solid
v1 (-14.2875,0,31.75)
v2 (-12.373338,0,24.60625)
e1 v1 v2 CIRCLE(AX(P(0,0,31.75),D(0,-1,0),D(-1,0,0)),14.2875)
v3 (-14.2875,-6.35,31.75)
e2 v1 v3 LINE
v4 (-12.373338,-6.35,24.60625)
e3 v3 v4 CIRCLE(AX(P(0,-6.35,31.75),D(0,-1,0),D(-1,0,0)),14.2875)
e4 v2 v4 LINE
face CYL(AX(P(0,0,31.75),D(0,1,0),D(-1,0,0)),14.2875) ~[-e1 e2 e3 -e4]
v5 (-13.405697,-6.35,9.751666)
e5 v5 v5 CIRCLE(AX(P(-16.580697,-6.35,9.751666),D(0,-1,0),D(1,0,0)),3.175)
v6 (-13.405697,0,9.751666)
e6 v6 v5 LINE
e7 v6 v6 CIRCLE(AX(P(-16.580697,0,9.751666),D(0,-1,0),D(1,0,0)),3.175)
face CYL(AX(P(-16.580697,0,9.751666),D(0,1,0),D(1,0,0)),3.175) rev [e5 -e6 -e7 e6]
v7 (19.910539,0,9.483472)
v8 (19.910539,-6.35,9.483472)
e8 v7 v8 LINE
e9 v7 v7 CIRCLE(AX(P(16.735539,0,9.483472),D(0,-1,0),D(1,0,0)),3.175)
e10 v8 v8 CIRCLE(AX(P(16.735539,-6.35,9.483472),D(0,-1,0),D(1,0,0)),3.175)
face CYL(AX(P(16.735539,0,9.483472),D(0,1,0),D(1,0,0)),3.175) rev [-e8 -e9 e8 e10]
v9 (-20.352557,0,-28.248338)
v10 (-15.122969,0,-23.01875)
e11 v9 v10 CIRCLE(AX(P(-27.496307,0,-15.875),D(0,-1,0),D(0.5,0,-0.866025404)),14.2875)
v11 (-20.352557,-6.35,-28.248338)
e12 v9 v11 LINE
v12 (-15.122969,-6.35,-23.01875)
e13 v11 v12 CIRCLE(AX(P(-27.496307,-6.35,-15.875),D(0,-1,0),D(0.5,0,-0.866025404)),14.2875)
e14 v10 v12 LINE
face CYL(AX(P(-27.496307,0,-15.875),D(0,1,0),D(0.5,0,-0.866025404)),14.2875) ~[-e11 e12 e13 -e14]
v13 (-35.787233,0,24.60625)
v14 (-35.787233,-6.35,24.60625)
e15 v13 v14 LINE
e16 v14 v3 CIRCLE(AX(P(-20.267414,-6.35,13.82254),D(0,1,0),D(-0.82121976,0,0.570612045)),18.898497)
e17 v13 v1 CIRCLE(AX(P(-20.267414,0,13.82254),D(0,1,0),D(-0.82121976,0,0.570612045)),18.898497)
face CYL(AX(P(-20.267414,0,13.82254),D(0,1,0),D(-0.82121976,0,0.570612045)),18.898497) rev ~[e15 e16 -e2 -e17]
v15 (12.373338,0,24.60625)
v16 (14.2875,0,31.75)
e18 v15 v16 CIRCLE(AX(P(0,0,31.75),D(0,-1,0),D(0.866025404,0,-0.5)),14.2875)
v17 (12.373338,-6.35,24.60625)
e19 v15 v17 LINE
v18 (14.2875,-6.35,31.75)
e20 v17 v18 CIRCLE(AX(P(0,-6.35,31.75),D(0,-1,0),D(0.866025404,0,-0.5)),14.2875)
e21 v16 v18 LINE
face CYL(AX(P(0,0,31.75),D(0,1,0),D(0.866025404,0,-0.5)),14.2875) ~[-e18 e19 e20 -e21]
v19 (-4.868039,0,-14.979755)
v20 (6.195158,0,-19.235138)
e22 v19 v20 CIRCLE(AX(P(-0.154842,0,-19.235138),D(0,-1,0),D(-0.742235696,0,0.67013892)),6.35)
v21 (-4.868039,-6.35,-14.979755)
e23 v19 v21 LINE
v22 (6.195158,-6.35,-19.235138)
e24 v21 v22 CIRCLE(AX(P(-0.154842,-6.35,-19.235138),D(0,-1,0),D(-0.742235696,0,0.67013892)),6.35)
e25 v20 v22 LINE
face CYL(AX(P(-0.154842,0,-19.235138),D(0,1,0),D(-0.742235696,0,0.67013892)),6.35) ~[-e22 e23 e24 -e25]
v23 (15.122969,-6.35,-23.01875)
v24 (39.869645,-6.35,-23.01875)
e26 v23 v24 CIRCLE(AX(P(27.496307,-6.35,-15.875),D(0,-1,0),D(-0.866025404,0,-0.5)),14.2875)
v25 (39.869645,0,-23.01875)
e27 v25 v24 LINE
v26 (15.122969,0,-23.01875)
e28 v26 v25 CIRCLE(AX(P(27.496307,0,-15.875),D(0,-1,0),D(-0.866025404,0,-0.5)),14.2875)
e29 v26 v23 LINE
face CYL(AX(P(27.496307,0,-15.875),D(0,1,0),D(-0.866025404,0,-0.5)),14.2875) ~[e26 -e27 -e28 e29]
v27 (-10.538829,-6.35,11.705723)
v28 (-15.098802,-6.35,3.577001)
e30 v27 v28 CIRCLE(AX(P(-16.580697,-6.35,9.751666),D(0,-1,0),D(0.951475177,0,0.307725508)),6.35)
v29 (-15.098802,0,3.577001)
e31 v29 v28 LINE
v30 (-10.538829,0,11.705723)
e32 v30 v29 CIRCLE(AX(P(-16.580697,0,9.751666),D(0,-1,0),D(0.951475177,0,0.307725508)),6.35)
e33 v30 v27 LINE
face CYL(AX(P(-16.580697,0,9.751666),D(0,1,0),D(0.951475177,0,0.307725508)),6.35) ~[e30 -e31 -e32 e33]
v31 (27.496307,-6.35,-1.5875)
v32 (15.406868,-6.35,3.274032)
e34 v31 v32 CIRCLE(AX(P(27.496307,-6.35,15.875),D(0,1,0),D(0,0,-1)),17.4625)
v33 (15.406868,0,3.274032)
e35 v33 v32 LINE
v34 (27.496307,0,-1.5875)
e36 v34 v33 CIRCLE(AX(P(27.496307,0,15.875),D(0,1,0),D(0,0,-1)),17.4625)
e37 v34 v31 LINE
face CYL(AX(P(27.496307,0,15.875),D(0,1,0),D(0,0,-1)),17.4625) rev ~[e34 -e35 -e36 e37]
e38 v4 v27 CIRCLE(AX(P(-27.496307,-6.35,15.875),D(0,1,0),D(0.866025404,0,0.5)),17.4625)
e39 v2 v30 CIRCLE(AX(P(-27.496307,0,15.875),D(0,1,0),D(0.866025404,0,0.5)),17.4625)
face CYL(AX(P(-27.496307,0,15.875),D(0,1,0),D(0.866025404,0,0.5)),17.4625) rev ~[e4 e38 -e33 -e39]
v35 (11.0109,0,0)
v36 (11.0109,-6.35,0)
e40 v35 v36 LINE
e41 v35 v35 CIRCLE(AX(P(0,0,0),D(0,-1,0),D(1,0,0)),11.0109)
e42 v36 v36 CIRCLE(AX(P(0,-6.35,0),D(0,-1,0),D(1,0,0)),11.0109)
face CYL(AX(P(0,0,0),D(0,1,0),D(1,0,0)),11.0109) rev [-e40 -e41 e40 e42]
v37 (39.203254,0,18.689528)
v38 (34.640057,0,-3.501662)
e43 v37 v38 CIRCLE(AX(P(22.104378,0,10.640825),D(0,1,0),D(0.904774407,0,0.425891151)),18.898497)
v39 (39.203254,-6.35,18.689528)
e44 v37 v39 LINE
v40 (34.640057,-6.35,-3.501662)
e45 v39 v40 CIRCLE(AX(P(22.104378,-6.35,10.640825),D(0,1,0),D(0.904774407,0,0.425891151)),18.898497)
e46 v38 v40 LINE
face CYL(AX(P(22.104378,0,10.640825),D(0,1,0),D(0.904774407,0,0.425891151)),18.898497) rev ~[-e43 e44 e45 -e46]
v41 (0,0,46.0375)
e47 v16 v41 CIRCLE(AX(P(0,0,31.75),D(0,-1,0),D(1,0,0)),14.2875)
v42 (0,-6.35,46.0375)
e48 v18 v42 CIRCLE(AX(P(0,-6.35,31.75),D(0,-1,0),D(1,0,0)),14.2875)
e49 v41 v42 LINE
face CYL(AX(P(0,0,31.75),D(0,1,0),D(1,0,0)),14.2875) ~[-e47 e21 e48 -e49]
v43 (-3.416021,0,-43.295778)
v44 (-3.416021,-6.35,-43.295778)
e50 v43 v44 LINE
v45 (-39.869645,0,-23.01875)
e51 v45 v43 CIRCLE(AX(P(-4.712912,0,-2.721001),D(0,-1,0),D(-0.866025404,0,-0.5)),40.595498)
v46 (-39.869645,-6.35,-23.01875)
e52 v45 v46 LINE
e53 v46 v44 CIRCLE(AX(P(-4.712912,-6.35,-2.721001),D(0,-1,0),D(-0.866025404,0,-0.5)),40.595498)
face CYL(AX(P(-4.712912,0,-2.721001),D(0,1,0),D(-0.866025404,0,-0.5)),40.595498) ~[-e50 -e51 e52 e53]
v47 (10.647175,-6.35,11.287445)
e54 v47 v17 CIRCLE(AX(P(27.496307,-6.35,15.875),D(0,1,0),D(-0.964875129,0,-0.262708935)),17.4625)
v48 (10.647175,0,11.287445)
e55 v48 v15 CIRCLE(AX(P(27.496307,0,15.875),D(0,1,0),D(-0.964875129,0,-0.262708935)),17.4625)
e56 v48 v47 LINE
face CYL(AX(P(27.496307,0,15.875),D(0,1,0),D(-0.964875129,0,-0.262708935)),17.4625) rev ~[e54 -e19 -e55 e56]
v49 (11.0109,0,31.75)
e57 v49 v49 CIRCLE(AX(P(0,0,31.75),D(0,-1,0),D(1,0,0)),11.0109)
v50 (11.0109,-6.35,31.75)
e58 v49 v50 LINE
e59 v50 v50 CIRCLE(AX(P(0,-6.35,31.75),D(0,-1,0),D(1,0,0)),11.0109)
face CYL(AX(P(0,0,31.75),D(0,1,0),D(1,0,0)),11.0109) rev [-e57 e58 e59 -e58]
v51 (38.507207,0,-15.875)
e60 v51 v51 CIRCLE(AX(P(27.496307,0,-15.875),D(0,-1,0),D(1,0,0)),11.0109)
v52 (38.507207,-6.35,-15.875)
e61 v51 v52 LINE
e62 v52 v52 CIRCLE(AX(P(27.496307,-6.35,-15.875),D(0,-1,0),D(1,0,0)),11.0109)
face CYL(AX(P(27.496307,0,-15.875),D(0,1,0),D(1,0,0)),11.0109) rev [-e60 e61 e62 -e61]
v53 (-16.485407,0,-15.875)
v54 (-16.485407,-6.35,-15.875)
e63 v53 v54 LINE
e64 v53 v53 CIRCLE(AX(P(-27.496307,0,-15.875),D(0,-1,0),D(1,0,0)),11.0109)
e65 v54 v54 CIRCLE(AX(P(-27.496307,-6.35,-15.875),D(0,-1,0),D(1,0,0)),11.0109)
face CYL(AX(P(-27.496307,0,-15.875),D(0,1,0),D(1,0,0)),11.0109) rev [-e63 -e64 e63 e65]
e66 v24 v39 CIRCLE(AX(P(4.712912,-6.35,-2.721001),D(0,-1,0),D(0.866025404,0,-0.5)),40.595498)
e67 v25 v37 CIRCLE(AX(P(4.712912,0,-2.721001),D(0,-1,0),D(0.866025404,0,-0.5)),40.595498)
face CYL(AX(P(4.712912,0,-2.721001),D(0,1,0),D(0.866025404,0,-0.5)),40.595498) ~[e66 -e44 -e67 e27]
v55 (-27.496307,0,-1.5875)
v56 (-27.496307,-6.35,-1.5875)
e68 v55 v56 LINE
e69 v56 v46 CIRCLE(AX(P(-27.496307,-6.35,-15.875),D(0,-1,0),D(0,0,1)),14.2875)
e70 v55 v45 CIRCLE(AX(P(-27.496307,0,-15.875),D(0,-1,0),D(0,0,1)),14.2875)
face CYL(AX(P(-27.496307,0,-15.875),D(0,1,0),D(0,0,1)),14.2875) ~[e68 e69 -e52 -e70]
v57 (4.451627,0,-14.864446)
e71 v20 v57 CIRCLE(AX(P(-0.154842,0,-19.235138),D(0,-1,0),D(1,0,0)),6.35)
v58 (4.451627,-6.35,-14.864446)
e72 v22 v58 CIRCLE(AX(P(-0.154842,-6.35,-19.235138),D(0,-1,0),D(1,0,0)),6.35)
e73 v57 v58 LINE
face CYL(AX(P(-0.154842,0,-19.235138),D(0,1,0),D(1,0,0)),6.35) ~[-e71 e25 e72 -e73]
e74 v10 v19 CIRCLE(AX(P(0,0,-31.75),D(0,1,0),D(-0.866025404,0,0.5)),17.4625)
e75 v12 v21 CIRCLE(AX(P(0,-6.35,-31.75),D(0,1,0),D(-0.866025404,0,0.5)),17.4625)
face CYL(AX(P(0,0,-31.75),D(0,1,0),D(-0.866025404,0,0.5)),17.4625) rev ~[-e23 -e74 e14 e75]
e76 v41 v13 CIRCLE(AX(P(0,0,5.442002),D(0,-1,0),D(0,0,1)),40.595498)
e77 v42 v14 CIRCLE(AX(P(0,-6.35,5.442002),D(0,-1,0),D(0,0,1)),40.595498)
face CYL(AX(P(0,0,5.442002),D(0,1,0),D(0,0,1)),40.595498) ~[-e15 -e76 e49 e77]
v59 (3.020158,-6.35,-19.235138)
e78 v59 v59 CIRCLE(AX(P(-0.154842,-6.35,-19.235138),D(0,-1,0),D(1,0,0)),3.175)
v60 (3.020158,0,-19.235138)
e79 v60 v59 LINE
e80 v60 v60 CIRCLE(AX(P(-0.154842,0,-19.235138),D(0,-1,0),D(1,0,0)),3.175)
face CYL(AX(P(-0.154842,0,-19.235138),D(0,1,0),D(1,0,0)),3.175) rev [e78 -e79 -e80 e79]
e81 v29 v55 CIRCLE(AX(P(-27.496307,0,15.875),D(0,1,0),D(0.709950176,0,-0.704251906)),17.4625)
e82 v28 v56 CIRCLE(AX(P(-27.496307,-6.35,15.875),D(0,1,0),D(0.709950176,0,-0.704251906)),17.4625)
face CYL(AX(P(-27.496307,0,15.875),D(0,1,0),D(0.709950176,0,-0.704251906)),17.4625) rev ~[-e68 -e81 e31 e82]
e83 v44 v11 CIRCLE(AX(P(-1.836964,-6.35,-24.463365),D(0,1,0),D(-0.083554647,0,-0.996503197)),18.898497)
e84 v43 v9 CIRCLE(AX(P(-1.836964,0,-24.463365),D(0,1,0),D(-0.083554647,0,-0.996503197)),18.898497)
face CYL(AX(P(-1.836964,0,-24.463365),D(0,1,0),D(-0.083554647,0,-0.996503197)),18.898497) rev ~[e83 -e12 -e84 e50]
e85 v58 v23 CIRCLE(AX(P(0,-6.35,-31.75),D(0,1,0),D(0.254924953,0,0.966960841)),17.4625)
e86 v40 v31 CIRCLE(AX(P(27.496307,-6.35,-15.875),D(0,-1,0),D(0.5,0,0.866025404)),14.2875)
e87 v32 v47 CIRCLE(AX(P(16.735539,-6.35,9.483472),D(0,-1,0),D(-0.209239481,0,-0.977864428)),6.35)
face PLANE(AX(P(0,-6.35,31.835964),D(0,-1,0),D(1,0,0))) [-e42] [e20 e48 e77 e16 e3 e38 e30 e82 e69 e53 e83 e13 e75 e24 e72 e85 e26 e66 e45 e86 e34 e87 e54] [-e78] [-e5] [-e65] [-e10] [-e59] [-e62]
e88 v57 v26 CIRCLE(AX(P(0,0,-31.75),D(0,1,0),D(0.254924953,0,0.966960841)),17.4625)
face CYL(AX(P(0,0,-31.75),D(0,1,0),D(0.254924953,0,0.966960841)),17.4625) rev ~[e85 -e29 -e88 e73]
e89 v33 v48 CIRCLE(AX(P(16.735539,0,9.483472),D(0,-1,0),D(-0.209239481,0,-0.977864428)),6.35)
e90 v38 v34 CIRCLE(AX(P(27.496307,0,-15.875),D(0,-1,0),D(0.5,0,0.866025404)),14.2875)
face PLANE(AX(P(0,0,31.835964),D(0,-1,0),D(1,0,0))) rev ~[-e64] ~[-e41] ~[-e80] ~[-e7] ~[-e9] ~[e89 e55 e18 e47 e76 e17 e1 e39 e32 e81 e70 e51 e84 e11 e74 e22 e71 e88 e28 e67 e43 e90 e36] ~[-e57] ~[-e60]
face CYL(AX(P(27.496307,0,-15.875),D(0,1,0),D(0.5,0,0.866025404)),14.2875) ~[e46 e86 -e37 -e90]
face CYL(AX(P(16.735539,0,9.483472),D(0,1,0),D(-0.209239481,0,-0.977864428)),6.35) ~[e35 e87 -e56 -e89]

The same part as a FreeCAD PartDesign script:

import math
import FreeCAD as App
import Part
import Sketcher

V = App.Vector
Q = App.Units.Quantity

doc = App.newDocument("Part")
body = doc.addObject("PartDesign::Body", "Body")

sketch1 = body.newObject("Sketcher::SketchObject", "Sketch")
sketch1.AttachmentSupport = (doc.getObject("XZ_Plane"), [""])
sketch1.MapMode = "FlatFace"
sketch1.addGeometry([
    Part.ArcOfCircle(Part.Circle(V(0, -31.8, 0), V(0, 0, 1), 17.5), math.radians(106), math.radians(150)),
    Part.ArcOfCircle(Part.Circle(V(-0.2, -19.2, 0), V(0, 0, 1), 6.3), math.radians(138), math.radians(360)),
    Part.ArcOfCircle(Part.Circle(V(-0.2, -19.2, 0), V(0, 0, 1), 6.3), math.radians(0), math.radians(43)),
    Part.ArcOfCircle(Part.Circle(V(0, -31.8, 0), V(0, 0, 1), 17.5), math.radians(30), math.radians(75)),
    Part.ArcOfCircle(Part.Circle(V(27.5, -15.9, 0), V(0, 0, 1), 14.3), math.radians(-150), math.radians(-30)),
    Part.ArcOfCircle(Part.Circle(V(4.7, -2.7, 0), V(0, 0, 1), 40.6), math.radians(-30), math.radians(32)),
    Part.ArcOfCircle(Part.Circle(V(22.1, 10.6, 0), V(0, 0, 1), 18.9), math.radians(-48), math.radians(25)),
    Part.ArcOfCircle(Part.Circle(V(27.5, -15.9, 0), V(0, 0, 1), 14.3), math.radians(60), math.radians(90)),
    Part.ArcOfCircle(Part.Circle(V(27.5, 15.9, 0), V(0, 0, 1), 17.5), math.radians(-134), math.radians(-90)),
    Part.ArcOfCircle(Part.Circle(V(16.7, 9.5, 0), V(0, 0, 1), 6.3), math.radians(-102), math.radians(163)),
    Part.ArcOfCircle(Part.Circle(V(27.5, 15.9, 0), V(0, 0, 1), 17.5), math.radians(150), math.radians(195)),
    Part.ArcOfCircle(Part.Circle(V(0, 31.8, 0), V(0, 0, 1), 14.3), math.radians(-30), math.radians(0)),
    Part.ArcOfCircle(Part.Circle(V(0, 31.8, 0), V(0, 0, 1), 14.3), math.radians(0), math.radians(90)),
    Part.ArcOfCircle(Part.Circle(V(0, 5.4, 0), V(0, 0, 1), 40.6), math.radians(90), math.radians(152)),
    Part.ArcOfCircle(Part.Circle(V(-20.3, 13.8, 0), V(0, 0, 1), 18.9), math.radians(72), math.radians(145)),
    Part.ArcOfCircle(Part.Circle(V(0, 31.8, 0), V(0, 0, 1), 14.3), math.radians(180), math.radians(210)),
    Part.ArcOfCircle(Part.Circle(V(-27.5, 15.9, 0), V(0, 0, 1), 17.5), math.radians(-14), math.radians(30)),
    Part.ArcOfCircle(Part.Circle(V(-16.6, 9.8, 0), V(0, 0, 1), 6.3), math.radians(18), math.radians(283)),
    Part.ArcOfCircle(Part.Circle(V(-27.5, 15.9, 0), V(0, 0, 1), 17.5), math.radians(-90), math.radians(-45)),
    Part.ArcOfCircle(Part.Circle(V(-27.5, -15.9, 0), V(0, 0, 1), 14.3), math.radians(90), math.radians(210)),
    Part.ArcOfCircle(Part.Circle(V(-4.7, -2.7, 0), V(0, 0, 1), 40.6), math.radians(-150), math.radians(-88)),
    Part.ArcOfCircle(Part.Circle(V(-1.8, -24.5, 0), V(0, 0, 1), 18.9), math.radians(-168), math.radians(-95)),
    Part.ArcOfCircle(Part.Circle(V(-27.5, -15.9, 0), V(0, 0, 1), 14.3), math.radians(-60), math.radians(-30)),
    Part.Circle(V(-27.5, -15.9, 0), V(0, 0, 1), 11),
    Part.Circle(V(-0.2, -19.2, 0), V(0, 0, 1), 3.2),
    Part.Circle(V(27.5, -15.9, 0), V(0, 0, 1), 11),
    Part.Circle(V(0, 0, 0), V(0, 0, 1), 11),
    Part.Circle(V(-16.6, 9.8, 0), V(0, 0, 1), 3.2),
    Part.Circle(V(16.7, 9.5, 0), V(0, 0, 1), 3.2),
    Part.Circle(V(0, 31.8, 0), V(0, 0, 1), 11),
], False)
sketch1.addConstraint([
    Sketcher.Constraint("Coincident", 0, 1, 1, 1),
    Sketcher.Constraint("Tangent", 1, 2, 2, 1),
    Sketcher.Constraint("Coincident", 2, 2, 3, 2),
    Sketcher.Constraint("Tangent", 3, 1, 4, 1),
    Sketcher.Constraint("Tangent", 4, 2, 5, 1),
    Sketcher.Constraint("Coincident", 5, 2, 6, 2),
    Sketcher.Constraint("Coincident", 6, 1, 7, 1),
    Sketcher.Constraint("Tangent", 7, 2, 8, 2),
    Sketcher.Constraint("Coincident", 8, 1, 9, 1),
    Sketcher.Constraint("Coincident", 9, 2, 10, 2),
    Sketcher.Constraint("Tangent", 10, 1, 11, 1),
    Sketcher.Constraint("Tangent", 11, 2, 12, 1),
    Sketcher.Constraint("Tangent", 12, 2, 13, 1),
    Sketcher.Constraint("Coincident", 13, 2, 14, 2),
    Sketcher.Constraint("Coincident", 14, 1, 15, 1),
    Sketcher.Constraint("Tangent", 15, 2, 16, 2),
    Sketcher.Constraint("Coincident", 16, 1, 17, 1),
    Sketcher.Constraint("Coincident", 17, 2, 18, 2),
    Sketcher.Constraint("Tangent", 18, 1, 19, 1),
    Sketcher.Constraint("Tangent", 19, 2, 20, 1),
    Sketcher.Constraint("Coincident", 20, 2, 21, 2),
    Sketcher.Constraint("Coincident", 21, 1, 22, 1),
    Sketcher.Constraint("Tangent", 22, 2, 0, 2),
    Sketcher.Constraint("Coincident", 26, 3, -1, 1),
    Sketcher.Constraint("Coincident", 3, 3, 0, 3),
    Sketcher.Constraint("Coincident", 7, 3, 4, 3),
    Sketcher.Constraint("Coincident", 10, 3, 8, 3),
    Sketcher.Constraint("Coincident", 15, 3, 11, 3),
    Sketcher.Constraint("Coincident", 18, 3, 16, 3),
    Sketcher.Constraint("Coincident", 22, 3, 19, 3),
    Sketcher.Constraint("Coincident", 23, 3, 19, 3),
    Sketcher.Constraint("Coincident", 24, 3, 1, 3),
    Sketcher.Constraint("Coincident", 25, 3, 4, 3),
    Sketcher.Constraint("Coincident", 27, 3, 17, 3),
    Sketcher.Constraint("Coincident", 28, 3, 9, 3),
    Sketcher.Constraint("Coincident", 29, 3, 11, 3),
    Sketcher.Constraint("Equal", 1, 2),
    Sketcher.Constraint("Equal", 0, 3),
    Sketcher.Constraint("Equal", 4, 7),
    Sketcher.Constraint("Equal", 3, 8),
    Sketcher.Constraint("Equal", 2, 9),
    Sketcher.Constraint("Equal", 8, 10),
    Sketcher.Constraint("Equal", 7, 11),
    Sketcher.Constraint("Equal", 11, 12),
    Sketcher.Constraint("Equal", 5, 13),
    Sketcher.Constraint("Equal", 6, 14),
    Sketcher.Constraint("Equal", 12, 15),
    Sketcher.Constraint("Equal", 10, 16),
    Sketcher.Constraint("Equal", 9, 17),
    Sketcher.Constraint("Equal", 16, 18),
    Sketcher.Constraint("Equal", 15, 19),
    Sketcher.Constraint("Equal", 13, 20),
    Sketcher.Constraint("Equal", 14, 21),
    Sketcher.Constraint("Equal", 19, 22),
    Sketcher.Constraint("Equal", 23, 25),
    Sketcher.Constraint("Equal", 25, 26),
    Sketcher.Constraint("Equal", 24, 27),
    Sketcher.Constraint("Equal", 27, 28),
    Sketcher.Constraint("Equal", 26, 29),
    Sketcher.Constraint("Symmetric", 0, 3, 11, 3, -1, 1),
    Sketcher.Constraint("Symmetric", 8, 3, 16, 3, -2),
    Sketcher.Constraint("PointOnObject", 13, 3, -2),
    Sketcher.Constraint("Horizontal", 5, 3, 20, 3),
    Sketcher.Constraint("Horizontal", 24, 3, 1, 2),
    Sketcher.Constraint("Horizontal", 3, 1, 4, 2),
    Sketcher.Constraint("Horizontal", 29, 3, 11, 2),
    Sketcher.Constraint("Horizontal", 10, 1, 13, 2),
    Sketcher.Constraint("Horizontal", 11, 2, 14, 1),
    Sketcher.Constraint("Vertical", 7, 3, 8, 3),
    Sketcher.Constraint("Diameter", 24, Q("0.25 in")),
    Sketcher.Constraint("Radius", 1, Q("0.25 in")),
    Sketcher.Constraint("Diameter", 23, Q("0.867 in")),
    Sketcher.Constraint("Radius", 0, Q("0.6875 in")),
    Sketcher.Constraint("Radius", 4, Q("0.5625 in")),
    Sketcher.Constraint("DistanceY", 0, 3, -1, 1, Q("1.25 in")),
    Sketcher.Constraint("Radius", 5, Q("40.595498 mm")),
    Sketcher.Constraint("DistanceX", 4, 3, 6, 1, Q("0.28125 in")),
    Sketcher.Constraint("DistanceX", 19, 3, 21, 1, Q("0.28125 in")),
    Sketcher.Constraint("Radius", 6, Q("18.898497 mm")),
    Sketcher.Constraint("DistanceX", 17, 2, -1, 1, Q("15.098802 mm")),
    Sketcher.Constraint("DistanceX", -1, 1, 9, 3, Q("16.735539 mm")),
    Sketcher.Constraint("DistanceY", -1, 1, 9, 3, Q("9.483472 mm")),
    Sketcher.Constraint("DistanceX", 0, 1, -1, 1, Q("4.868039 mm")),
    Sketcher.Constraint("DistanceY", -1, 1, 5, 2, Q("18.689528 mm")),
    Sketcher.Constraint("DistanceX", 16, 1, -1, 1, Q("10.538829 mm")),
    Sketcher.Constraint("DistanceX", 20, 2, -1, 1, Q("3.416021 mm")),
    Sketcher.Constraint("DistanceX", 1, 3, 4, 3, Q("27.651149 mm")),
])
pad1 = body.newObject("PartDesign::Pad", "Pad")
pad1.Profile = sketch1
pad1.Length = Q("0.25 in")

doc.recompute()
